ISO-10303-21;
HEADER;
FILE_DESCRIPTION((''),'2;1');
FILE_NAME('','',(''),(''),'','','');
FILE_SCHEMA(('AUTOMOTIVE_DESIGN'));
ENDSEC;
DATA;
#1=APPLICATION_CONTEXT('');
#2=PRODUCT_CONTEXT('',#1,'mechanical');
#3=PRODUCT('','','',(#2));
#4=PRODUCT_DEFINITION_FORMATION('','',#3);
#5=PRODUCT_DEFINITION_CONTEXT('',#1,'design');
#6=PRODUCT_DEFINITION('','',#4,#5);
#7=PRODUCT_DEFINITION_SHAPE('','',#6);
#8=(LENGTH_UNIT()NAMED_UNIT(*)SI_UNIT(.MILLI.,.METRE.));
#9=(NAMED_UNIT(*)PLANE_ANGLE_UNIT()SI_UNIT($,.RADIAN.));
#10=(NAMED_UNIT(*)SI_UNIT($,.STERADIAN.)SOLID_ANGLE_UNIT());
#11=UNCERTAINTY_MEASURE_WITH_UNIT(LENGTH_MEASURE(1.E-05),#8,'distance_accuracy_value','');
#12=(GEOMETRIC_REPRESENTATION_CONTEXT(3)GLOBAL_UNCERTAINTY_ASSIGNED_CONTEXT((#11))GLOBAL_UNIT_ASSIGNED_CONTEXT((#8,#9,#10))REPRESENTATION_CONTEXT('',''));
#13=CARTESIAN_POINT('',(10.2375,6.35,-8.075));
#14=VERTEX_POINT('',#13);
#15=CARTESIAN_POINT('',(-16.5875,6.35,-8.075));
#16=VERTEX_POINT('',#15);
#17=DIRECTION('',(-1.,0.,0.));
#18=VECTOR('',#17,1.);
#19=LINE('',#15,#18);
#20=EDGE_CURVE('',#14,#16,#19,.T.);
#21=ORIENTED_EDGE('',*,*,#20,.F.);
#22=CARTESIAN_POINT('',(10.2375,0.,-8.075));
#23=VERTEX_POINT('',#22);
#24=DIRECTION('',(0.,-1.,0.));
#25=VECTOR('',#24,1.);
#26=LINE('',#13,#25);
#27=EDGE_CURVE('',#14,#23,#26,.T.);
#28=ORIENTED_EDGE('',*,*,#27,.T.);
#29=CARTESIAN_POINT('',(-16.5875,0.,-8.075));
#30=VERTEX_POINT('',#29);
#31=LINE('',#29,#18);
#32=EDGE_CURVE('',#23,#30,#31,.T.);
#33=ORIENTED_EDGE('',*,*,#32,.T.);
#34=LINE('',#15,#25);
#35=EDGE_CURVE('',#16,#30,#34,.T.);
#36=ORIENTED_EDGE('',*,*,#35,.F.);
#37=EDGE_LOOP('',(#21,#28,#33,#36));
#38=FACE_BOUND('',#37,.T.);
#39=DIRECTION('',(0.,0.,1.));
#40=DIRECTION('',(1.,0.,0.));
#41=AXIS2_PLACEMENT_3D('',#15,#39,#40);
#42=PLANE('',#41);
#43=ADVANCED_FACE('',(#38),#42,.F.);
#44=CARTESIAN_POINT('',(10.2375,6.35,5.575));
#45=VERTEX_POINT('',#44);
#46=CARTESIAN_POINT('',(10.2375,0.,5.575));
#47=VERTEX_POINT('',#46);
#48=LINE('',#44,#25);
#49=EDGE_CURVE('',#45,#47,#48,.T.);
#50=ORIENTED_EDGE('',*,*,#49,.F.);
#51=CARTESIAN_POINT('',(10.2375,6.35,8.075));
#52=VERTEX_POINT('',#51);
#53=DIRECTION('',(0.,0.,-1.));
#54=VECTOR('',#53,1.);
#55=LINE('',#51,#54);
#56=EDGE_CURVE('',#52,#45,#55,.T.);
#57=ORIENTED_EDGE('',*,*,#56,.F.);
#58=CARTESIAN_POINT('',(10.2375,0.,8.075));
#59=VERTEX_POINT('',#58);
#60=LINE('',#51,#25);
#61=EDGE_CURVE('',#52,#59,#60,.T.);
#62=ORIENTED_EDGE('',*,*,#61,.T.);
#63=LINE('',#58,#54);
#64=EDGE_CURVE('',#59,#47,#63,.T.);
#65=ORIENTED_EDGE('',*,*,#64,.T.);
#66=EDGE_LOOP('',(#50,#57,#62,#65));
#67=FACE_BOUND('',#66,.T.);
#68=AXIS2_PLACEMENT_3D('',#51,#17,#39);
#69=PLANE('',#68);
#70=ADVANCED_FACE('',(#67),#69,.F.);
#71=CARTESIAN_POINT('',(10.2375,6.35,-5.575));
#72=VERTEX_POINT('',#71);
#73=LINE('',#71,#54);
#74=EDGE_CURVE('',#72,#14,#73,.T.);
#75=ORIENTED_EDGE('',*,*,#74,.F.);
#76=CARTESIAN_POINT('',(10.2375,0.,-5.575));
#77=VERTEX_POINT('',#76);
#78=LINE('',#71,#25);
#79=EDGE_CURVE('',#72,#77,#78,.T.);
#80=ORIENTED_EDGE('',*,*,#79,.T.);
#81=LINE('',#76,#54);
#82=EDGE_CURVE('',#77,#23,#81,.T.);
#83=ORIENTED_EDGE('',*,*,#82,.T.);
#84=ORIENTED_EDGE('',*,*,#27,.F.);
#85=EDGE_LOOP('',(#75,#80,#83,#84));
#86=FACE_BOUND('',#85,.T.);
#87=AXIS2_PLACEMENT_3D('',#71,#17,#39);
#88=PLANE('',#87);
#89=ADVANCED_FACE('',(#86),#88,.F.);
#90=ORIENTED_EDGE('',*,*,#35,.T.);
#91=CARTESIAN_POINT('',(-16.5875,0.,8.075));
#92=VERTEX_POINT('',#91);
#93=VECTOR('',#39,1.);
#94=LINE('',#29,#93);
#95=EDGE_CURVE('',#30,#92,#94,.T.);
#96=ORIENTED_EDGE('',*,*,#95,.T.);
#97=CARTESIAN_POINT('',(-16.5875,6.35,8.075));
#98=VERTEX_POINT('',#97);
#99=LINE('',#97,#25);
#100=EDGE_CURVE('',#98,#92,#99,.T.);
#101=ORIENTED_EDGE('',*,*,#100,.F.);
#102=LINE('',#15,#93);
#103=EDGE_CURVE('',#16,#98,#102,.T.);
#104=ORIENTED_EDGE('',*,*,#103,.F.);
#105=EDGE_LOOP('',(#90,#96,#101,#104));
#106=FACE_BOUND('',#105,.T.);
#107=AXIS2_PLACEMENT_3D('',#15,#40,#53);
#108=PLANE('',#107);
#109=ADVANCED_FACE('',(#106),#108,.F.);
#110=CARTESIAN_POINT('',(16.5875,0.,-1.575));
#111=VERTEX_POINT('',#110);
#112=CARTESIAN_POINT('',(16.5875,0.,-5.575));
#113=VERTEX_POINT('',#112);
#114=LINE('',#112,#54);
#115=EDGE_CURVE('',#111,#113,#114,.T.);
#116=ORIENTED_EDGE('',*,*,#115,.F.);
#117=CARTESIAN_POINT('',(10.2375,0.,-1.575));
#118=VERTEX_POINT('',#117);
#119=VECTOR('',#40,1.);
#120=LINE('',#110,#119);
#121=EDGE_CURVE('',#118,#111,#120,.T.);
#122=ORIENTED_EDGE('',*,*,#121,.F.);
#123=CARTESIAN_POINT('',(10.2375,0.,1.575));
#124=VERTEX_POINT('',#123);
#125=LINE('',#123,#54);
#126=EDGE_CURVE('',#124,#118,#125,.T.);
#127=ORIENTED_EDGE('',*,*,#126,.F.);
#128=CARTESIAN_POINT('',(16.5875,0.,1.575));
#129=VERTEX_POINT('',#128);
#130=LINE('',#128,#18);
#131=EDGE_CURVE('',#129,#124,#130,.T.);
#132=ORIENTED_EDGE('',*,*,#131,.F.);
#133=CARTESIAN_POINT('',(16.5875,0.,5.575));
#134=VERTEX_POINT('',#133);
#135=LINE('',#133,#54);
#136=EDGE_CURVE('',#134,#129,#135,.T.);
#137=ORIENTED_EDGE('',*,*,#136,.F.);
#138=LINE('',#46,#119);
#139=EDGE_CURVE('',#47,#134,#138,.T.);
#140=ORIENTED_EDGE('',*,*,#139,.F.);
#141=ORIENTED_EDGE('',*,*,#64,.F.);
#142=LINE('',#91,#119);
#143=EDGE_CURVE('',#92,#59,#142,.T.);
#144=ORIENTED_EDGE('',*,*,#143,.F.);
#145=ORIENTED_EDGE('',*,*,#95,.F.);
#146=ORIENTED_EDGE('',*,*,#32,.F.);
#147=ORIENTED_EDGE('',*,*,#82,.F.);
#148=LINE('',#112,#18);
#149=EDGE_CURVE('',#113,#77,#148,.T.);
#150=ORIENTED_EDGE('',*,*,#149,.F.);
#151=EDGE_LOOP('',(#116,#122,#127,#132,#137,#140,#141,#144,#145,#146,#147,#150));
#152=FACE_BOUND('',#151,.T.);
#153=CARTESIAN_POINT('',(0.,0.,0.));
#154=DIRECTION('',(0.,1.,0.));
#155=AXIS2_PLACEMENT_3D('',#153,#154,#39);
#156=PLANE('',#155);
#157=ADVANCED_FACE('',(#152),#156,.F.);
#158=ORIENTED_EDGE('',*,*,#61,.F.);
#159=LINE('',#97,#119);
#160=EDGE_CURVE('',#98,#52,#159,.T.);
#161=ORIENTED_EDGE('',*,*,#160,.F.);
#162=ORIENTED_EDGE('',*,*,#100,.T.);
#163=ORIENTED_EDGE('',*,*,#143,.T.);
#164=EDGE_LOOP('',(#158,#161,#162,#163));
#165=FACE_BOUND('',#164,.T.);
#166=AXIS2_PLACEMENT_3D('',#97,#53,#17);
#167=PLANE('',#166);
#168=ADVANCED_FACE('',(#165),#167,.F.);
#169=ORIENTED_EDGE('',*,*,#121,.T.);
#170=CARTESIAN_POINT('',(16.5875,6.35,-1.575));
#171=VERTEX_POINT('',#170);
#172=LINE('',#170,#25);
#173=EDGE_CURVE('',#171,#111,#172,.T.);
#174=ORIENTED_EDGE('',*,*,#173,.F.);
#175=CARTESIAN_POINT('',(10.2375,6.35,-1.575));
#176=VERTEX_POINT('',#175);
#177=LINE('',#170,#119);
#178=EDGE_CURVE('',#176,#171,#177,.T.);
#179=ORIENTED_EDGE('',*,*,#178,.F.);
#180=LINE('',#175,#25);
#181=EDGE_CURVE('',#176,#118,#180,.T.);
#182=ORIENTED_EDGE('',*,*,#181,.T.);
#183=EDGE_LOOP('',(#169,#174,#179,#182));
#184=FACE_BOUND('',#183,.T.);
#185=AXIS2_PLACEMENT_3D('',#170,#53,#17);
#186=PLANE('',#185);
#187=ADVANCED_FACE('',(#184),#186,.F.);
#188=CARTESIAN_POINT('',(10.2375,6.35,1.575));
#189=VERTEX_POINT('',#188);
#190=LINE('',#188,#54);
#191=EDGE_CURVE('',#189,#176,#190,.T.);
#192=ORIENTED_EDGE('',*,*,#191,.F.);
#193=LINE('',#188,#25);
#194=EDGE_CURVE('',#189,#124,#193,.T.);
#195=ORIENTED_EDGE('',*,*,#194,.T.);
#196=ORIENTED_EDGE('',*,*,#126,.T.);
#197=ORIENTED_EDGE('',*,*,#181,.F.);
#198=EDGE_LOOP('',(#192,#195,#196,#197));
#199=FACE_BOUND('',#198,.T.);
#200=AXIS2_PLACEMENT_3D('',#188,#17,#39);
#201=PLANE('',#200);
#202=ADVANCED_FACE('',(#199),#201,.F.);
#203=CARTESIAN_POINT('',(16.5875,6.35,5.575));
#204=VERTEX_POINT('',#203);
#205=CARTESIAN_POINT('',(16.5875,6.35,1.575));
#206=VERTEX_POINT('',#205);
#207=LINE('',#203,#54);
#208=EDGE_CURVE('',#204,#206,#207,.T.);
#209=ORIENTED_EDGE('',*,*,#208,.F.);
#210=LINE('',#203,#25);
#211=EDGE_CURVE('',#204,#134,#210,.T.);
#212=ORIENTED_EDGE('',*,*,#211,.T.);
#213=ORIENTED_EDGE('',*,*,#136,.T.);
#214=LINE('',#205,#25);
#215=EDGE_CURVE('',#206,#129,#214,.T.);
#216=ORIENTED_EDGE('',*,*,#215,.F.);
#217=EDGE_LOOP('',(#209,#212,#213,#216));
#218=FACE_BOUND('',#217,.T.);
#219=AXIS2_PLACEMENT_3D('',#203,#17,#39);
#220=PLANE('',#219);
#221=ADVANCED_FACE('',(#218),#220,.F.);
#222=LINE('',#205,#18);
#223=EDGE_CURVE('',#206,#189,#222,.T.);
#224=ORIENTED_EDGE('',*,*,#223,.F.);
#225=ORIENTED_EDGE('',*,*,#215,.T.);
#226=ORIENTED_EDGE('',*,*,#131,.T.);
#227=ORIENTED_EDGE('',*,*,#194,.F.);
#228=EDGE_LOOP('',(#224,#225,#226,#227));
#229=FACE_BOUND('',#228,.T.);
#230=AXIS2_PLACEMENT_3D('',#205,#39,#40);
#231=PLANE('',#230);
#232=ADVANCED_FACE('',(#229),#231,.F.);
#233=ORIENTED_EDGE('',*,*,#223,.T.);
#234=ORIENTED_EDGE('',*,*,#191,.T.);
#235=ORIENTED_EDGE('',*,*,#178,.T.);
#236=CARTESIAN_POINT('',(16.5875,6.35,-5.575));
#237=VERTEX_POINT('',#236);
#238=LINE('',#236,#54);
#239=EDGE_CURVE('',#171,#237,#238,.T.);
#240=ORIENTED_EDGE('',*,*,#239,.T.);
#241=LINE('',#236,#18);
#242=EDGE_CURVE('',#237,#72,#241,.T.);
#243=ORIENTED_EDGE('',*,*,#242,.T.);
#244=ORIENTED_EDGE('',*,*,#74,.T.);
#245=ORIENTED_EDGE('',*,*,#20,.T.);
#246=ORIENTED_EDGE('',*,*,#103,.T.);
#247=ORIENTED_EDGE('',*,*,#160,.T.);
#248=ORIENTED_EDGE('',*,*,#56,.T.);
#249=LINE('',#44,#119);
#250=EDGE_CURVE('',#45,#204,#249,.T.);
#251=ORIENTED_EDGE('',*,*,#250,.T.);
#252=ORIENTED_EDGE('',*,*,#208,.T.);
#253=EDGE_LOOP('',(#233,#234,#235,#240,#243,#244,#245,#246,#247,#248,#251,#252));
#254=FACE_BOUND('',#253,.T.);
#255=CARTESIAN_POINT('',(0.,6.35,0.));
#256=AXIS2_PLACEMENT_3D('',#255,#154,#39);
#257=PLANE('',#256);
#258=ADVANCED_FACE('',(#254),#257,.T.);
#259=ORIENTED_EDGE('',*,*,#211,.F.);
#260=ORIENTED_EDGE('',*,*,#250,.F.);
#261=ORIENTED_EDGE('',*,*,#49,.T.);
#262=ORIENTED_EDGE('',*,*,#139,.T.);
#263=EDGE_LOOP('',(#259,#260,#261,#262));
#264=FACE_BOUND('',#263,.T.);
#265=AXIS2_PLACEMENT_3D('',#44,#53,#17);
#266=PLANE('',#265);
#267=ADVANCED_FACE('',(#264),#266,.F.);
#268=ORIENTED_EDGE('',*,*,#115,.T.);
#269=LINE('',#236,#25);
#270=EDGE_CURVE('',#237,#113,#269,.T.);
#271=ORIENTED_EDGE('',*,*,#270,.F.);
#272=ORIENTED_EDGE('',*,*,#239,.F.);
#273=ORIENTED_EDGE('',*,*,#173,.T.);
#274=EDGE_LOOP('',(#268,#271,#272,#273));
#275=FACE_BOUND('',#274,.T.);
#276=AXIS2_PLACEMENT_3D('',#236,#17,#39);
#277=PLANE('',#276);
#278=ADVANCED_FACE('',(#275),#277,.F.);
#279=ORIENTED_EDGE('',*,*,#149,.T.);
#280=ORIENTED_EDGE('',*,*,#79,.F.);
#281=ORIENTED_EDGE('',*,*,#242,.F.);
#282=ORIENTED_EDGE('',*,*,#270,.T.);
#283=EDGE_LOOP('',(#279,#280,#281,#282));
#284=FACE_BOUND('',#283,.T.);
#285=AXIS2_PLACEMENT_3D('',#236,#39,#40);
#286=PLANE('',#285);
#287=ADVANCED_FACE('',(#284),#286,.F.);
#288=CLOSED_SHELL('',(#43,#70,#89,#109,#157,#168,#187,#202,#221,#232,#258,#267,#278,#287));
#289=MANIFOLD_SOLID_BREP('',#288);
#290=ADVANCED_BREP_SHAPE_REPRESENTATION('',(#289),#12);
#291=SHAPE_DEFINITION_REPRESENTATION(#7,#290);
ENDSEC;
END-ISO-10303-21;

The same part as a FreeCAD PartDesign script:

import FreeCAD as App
import Part
import Sketcher
from FreeCAD import Vector
Q = App.Units.Quantity

doc = App.newDocument("Part")
params = doc.addObject("Spreadsheet::Sheet", "Params")
for row, (alias, value) in enumerate([
    ("sketch1_height", "4 mm"),
    ("sketch1_height2", "2.5 mm"),
    ("sketch1_width", "6.35 mm"),
    ("sketch1_height3", "16.15 mm"),
    ("pad1_length", "6.35 mm"),
], start=1):
    params.set(f"A{row}", alias)
    params.set(f"B{row}", "=" + value)
    params.setAlias(f"B{row}", alias)

body = doc.addObject("PartDesign::Body", "Body")

# Sketch on XZ plane
sketch1 = doc.addObject("Sketcher::SketchObject", "Sketch")
body.addObject(sketch1)
sketch1.AttachmentSupport = (doc.XZ_Plane, [""])
sketch1.MapMode = "FlatFace"
sketch1.addGeometry([
    Part.LineSegment(Vector(16.6, -5.6, 0), Vector(10.2, -5.6, 0)),  # 0
    Part.LineSegment(Vector(10.2, -5.6, 0), Vector(10.2, -8.1, 0)),  # 1
    Part.LineSegment(Vector(10.2, -8.1, 0), Vector(-16.6, -8.1, 0)),  # 2
    Part.LineSegment(Vector(-16.6, -8.1, 0), Vector(-16.6, 8.1, 0)),  # 3
    Part.LineSegment(Vector(-16.6, 8.1, 0), Vector(10.2, 8.1, 0)),  # 4
    Part.LineSegment(Vector(10.2, 8.1, 0), Vector(10.2, 5.6, 0)),  # 5
    Part.LineSegment(Vector(10.2, 5.6, 0), Vector(16.6, 5.6, 0)),  # 6
    Part.LineSegment(Vector(16.6, 5.6, 0), Vector(16.6, 1.6, 0)),  # 7
    Part.LineSegment(Vector(16.6, 1.6, 0), Vector(10.2, 1.6, 0)),  # 8
    Part.LineSegment(Vector(10.2, 1.6, 0), Vector(10.2, -1.6, 0)),  # 9
    Part.LineSegment(Vector(10.2, -1.6, 0), Vector(16.6, -1.6, 0)),  # 10
    Part.LineSegment(Vector(16.6, -1.6, 0), Vector(16.6, -5.6, 0)),  # 11
], False)
sketch1.addConstraint([
    Sketcher.Constraint("Coincident", 0, 2, 1, 1),
    Sketcher.Constraint("Coincident", 1, 2, 2, 1),
    Sketcher.Constraint("Coincident", 2, 2, 3, 1),
    Sketcher.Constraint("Coincident", 3, 2, 4, 1),
    Sketcher.Constraint("Coincident", 4, 2, 5, 1),
    Sketcher.Constraint("Coincident", 5, 2, 6, 1),
    Sketcher.Constraint("Coincident", 6, 2, 7, 1),
    Sketcher.Constraint("Coincident", 7, 2, 8, 1),
    Sketcher.Constraint("Coincident", 8, 2, 9, 1),
    Sketcher.Constraint("Coincident", 9, 2, 10, 1),
    Sketcher.Constraint("Coincident", 10, 2, 11, 1),
    Sketcher.Constraint("Coincident", 11, 2, 0, 1),
    Sketcher.Constraint("Horizontal", 0),
    Sketcher.Constraint("Vertical", 1),
    Sketcher.Constraint("Horizontal", 2),
    Sketcher.Constraint("Vertical", 3),
    Sketcher.Constraint("Horizontal", 4),
    Sketcher.Constraint("Vertical", 5),
    Sketcher.Constraint("Horizontal", 6),
    Sketcher.Constraint("Vertical", 7),
    Sketcher.Constraint("Horizontal", 8),
    Sketcher.Constraint("Vertical", 9),
    Sketcher.Constraint("Horizontal", 10),
    Sketcher.Constraint("Vertical", 11),
    Sketcher.Constraint("Symmetric", 1, 2, 4, 2, -1),
    Sketcher.Constraint("Symmetric", 7, 2, 10, 2, -1),
    Sketcher.Constraint("Vertical", 5, 2, 8, 2),
    Sketcher.Constraint("Equal", 1, 5),
    Sketcher.Constraint("DistanceY", 7, 2, 7, 1, Q("4 mm")),
    Sketcher.Constraint("DistanceY", 1, 2, 1, 1, Q("2.5 mm")),
    Sketcher.Constraint("DistanceX", 0, 2, 0, 1, Q("6.35 mm")),
    Sketcher.Constraint("DistanceY", 3, 1, 3, 2, Q("16.15 mm")),
    Sketcher.Constraint("DistanceX", 2, 2, 2, 1, Q("26.825 mm")),
    Sketcher.Constraint("DistanceX", -1, 1, 0, 2, Q("10.2375 mm")),
])
sketch1.setExpression("Constraints[28]", "Params.sketch1_height")
sketch1.setExpression("Constraints[29]", "Params.sketch1_height2")
sketch1.setExpression("Constraints[30]", "Params.sketch1_width")
sketch1.setExpression("Constraints[31]", "Params.sketch1_height3")
pad1 = doc.addObject("PartDesign::Pad", "Pad")
body.addObject(pad1)
pad1.Profile = sketch1
pad1.setExpression("Length", "Params.pad1_length")
pad1.Reversed = True

doc.recompute()
